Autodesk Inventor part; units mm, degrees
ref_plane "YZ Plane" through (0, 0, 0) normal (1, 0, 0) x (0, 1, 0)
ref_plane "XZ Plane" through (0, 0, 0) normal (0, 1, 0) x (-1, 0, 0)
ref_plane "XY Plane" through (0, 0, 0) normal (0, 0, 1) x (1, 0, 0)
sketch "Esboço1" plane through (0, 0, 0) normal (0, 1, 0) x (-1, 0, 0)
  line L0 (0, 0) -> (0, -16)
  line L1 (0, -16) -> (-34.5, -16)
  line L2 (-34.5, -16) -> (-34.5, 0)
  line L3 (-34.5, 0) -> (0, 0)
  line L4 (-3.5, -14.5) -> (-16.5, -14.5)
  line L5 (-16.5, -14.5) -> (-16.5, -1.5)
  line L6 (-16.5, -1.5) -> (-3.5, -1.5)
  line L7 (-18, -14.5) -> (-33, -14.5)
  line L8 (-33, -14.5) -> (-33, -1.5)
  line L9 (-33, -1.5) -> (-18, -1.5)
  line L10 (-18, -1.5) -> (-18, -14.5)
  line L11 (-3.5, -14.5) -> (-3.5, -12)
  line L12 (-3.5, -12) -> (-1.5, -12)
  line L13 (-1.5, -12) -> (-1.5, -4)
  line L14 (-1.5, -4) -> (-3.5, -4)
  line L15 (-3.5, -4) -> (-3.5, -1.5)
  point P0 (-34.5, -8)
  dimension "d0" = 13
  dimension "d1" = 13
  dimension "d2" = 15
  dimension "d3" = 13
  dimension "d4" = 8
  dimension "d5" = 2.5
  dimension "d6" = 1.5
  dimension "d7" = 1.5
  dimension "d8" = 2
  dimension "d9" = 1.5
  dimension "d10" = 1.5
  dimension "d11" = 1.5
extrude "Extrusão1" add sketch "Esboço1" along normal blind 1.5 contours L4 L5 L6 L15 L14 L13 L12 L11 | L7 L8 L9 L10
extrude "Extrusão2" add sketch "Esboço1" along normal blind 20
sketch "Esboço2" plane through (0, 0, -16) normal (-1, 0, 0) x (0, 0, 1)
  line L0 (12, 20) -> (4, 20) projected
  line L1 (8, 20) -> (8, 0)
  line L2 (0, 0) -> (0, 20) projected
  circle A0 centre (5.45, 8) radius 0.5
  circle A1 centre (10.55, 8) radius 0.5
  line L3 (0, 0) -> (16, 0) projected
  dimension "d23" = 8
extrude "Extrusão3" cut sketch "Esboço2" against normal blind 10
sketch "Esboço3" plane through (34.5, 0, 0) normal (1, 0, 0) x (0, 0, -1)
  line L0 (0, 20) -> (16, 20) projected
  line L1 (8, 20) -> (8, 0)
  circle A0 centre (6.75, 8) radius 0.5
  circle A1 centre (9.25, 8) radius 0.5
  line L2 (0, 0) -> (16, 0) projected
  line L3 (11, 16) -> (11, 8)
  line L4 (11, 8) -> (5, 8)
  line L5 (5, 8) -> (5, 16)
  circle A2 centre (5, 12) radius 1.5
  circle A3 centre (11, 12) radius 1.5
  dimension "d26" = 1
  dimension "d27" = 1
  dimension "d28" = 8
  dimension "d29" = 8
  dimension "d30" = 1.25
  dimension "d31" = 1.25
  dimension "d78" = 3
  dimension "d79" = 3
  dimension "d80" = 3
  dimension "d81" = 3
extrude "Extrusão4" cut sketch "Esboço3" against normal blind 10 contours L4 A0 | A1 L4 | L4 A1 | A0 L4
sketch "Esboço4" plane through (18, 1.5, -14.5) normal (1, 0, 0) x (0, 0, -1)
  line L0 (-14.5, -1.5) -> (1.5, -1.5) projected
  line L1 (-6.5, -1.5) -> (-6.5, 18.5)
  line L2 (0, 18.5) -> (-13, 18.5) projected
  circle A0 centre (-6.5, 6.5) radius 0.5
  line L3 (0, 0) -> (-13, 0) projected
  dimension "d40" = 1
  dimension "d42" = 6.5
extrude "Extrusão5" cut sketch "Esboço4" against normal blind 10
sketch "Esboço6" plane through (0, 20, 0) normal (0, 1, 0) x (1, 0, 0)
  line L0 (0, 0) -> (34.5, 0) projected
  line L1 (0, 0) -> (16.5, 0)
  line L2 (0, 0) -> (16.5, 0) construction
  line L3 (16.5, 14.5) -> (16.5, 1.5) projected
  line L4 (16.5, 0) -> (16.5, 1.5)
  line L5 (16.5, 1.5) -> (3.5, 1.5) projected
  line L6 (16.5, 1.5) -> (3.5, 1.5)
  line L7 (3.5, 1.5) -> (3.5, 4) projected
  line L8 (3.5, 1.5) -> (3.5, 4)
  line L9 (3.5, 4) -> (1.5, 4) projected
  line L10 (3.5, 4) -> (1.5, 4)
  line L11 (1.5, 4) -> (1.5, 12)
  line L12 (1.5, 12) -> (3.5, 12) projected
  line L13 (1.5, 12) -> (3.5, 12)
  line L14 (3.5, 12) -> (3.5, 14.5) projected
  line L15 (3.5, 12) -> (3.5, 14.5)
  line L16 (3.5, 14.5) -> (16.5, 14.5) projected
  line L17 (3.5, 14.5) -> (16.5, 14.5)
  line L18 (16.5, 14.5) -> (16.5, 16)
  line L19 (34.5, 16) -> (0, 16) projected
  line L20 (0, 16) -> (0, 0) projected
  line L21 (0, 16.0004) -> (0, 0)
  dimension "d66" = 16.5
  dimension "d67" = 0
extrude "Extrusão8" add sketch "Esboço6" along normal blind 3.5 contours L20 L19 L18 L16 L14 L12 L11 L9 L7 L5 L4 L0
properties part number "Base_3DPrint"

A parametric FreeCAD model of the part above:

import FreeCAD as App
import Part
import Sketcher
from FreeCAD import Vector


def add_polygon(sketch, points):
    """Adds a closed chain of lines whose ends are joined by coincident constraints."""
    first, n = sketch.GeometryCount, len(points)
    for a, b in zip(points, points[1:] + points[:1]):
        sketch.addGeometry(Part.LineSegment(App.Vector(*a, 0), App.Vector(*b, 0)), False)
    for i in range(n):
        sketch.addConstraint(Sketcher.Constraint("Coincident", first + i, 2, first + (i + 1) % n, 1))

doc = App.newDocument("Part")
body = doc.addObject("PartDesign::Body", "Body")
body.AllowCompound = True

sketch1 = doc.addObject("Sketcher::SketchObject", "Sketch")
body.addObject(sketch1)
sketch1.AttachmentSupport = (doc.XZ_Plane, [""])
sketch1.MapMode = "FlatFace"
add_polygon(sketch1, [(16.5, -14.5), (3.5, -14.5), (3.5, -12), (1.5, -12), (1.5, -4), (3.5, -4), (3.5, -1.5), (16.5, -1.5)])
add_polygon(sketch1, [(33, -14.5), (18, -14.5), (18, -1.5), (33, -1.5)])
sketch1.addConstraint([
    Sketcher.Constraint("Horizontal", 0),
    Sketcher.Constraint("Vertical", 1),
    Sketcher.Constraint("Horizontal", 2),
    Sketcher.Constraint("Vertical", 3),
    Sketcher.Constraint("Horizontal", 4),
    Sketcher.Constraint("Vertical", 5),
    Sketcher.Constraint("Horizontal", 6),
    Sketcher.Constraint("Vertical", 7),
    Sketcher.Constraint("Horizontal", 8),
    Sketcher.Constraint("Vertical", 9),
    Sketcher.Constraint("Horizontal", 10),
    Sketcher.Constraint("Vertical", 11),
    Sketcher.Constraint("Horizontal", 7, 2, 8, 2),
    Sketcher.Constraint("Horizontal", 6, 2, 9, 2),
    Sketcher.Constraint("Vertical", 1, 2, 4, 2),
    Sketcher.Constraint("Equal", 1, 5),
    Sketcher.Constraint("Equal", 6, 7),
    Sketcher.Constraint("DistanceX", 0, 2, 0, 1, 13.0),
    Sketcher.Constraint("DistanceX", 2, 2, 2, 1, 2.0),
    Sketcher.Constraint("DistanceX", 8, 2, 8, 1, 15.0),
    Sketcher.Constraint("DistanceY", 3, 1, 3, 2, 8.0),
    Sketcher.Constraint("DistanceX", -1, 1, 2, 2, 1.5),
    Sketcher.Constraint("DistanceY", 5, 2, -1, 1, 1.5),
    Sketcher.Constraint("DistanceX", 7, 2, 8, 2, 1.5),
])
pad1 = doc.addObject("PartDesign::Pad", "Pad")
body.addObject(pad1)
pad1.Profile = sketch1
pad1.Length = 1.5
pad1.Reversed = True

sketch2 = doc.addObject("Sketcher::SketchObject", "Sketch001")
body.addObject(sketch2)
sketch2.AttachmentSupport = (doc.XZ_Plane, [""])
sketch2.MapMode = "FlatFace"
add_polygon(sketch2, [(0, -16), (0, 0), (34.5, 0), (34.5, -16)])
add_polygon(sketch2, [(18, -1.5), (18, -14.5), (33, -14.5), (33, -1.5)])
add_polygon(sketch2, [(3.5, -12), (3.5, -14.5), (16.5, -14.5), (16.5, -1.5), (3.5, -1.5), (3.5, -4), (1.5, -4), (1.5, -12)])
sketch2.addConstraint([
    Sketcher.Constraint("Vertical", 0),
    Sketcher.Constraint("Horizontal", 1),
    Sketcher.Constraint("Vertical", 2),
    Sketcher.Constraint("Horizontal", 3),
    Sketcher.Constraint("Vertical", 4),
    Sketcher.Constraint("Horizontal", 5),
    Sketcher.Constraint("Vertical", 6),
    Sketcher.Constraint("Horizontal", 7),
    Sketcher.Constraint("Vertical", 8),
    Sketcher.Constraint("Horizontal", 9),
    Sketcher.Constraint("Vertical", 10),
    Sketcher.Constraint("Horizontal", 11),
    Sketcher.Constraint("Vertical", 12),
    Sketcher.Constraint("Horizontal", 13),
    Sketcher.Constraint("Vertical", 14),
    Sketcher.Constraint("Horizontal", 15),
    Sketcher.Constraint("Coincident", 0, 2, -1, 1),
    Sketcher.Constraint("Horizontal", 5, 2, 8, 2),
    Sketcher.Constraint("Horizontal", 7, 2, 10, 2),
    Sketcher.Constraint("Vertical", 8, 2, 11, 2),
    Sketcher.Constraint("Equal", 11, 4),
    Sketcher.Constraint("Equal", 8, 12),
    Sketcher.Constraint("DistanceX", 5, 1, 5, 2, 15.0),
    Sketcher.Constraint("DistanceX", 9, 1, 9, 2, 13.0),
    Sketcher.Constraint("DistanceX", 13, 2, 13, 1, 2.0),
    Sketcher.Constraint("DistanceY", 14, 2, 14, 1, 8.0),
    Sketcher.Constraint("DistanceY", 6, 2, -1, 1, 1.5),
    Sketcher.Constraint("DistanceX", -1, 1, 13, 2, 1.5),
    Sketcher.Constraint("DistanceY", 2, 2, 4, 2, 1.5),
    Sketcher.Constraint("DistanceX", 5, 2, 2, 2, 1.5),
    Sketcher.Constraint("DistanceX", 9, 2, 4, 2, 1.5),
])
pad2 = doc.addObject("PartDesign::Pad", "Pad001")
body.addObject(pad2)
pad2.Profile = sketch2
pad2.Length = 20
pad2.Reversed = True

sketch3 = doc.addObject("Sketcher::SketchObject", "Sketch002")
body.addObject(sketch3)
sketch3.AttachmentSupport = (doc.YZ_Plane, [""])
sketch3.MapMode = "FlatFace"
sketch3.addGeometry([
    Part.Circle(Vector(8, -10.6, 0), Vector(0, 0, 1), 0.5),
    Part.Circle(Vector(8, -5.5, 0), Vector(0, 0, 1), 0.5),
], False)
sketch3.addConstraint([
    Sketcher.Constraint("Equal", 0, 1),
    Sketcher.Constraint("Vertical", 0, 3, 1, 3),
    Sketcher.Constraint("Diameter", 0, 1.0),
    Sketcher.Constraint("DistanceX", -1, 1, 0, 3, 8.0),
    Sketcher.Constraint("DistanceY", 0, 3, 1, 3, 5.1),
    Sketcher.Constraint("DistanceY", 0, 3, -1, 1, 10.55),
])
pocket1 = doc.addObject("PartDesign::Pocket", "Pocket")
body.addObject(pocket1)
pocket1.Profile = sketch3
pocket1.Length = 10
pocket1.Reversed = True

sketch4 = doc.addObject("Sketcher::SketchObject", "Sketch003")
body.addObject(sketch4)
sketch4.AttachmentSupport = (doc.YZ_Plane, [""])
sketch4.MapMode = "FlatFace"
sketch4.AttachmentOffset = App.Placement(Vector(0, 0, 34.5), App.Rotation())
sketch4.addGeometry([
    Part.Circle(Vector(8, -6.8, 0), Vector(0, 0, 1), 0.5),
    Part.Circle(Vector(8, -9.2, 0), Vector(0, 0, 1), 0.5),
], False)
sketch4.addConstraint([
    Sketcher.Constraint("Equal", 0, 1),
    Sketcher.Constraint("Vertical", 0, 3, 1, 3),
    Sketcher.Constraint("Diameter", 0, 1.0),
    Sketcher.Constraint("DistanceX", -1, 1, 0, 3, 8.0),
    Sketcher.Constraint("DistanceY", 1, 3, 0, 3, 2.5),
    Sketcher.Constraint("DistanceY", 0, 3, -1, 1, 6.75),
])
pocket2 = doc.addObject("PartDesign::Pocket", "Pocket001")
body.addObject(pocket2)
pocket2.Profile = sketch4
pocket2.Length = 10

sketch5 = doc.addObject("Sketcher::SketchObject", "Sketch004")
body.addObject(sketch5)
sketch5.AttachmentSupport = (doc.YZ_Plane, [""])
sketch5.MapMode = "FlatFace"
sketch5.AttachmentOffset = App.Placement(Vector(0, 0, 18), App.Rotation())
sketch5.addGeometry(Part.Circle(Vector(8, -8, 0), Vector(0, 0, 1), 0.5), False)
sketch5.addConstraint([
    Sketcher.Constraint("Diameter", 0, 1.0),
    Sketcher.Constraint("DistanceX", -1, 1, 0, 3, 8.0),
    Sketcher.Constraint("DistanceY", 0, 3, -1, 1, 8.0),
])
pocket3 = doc.addObject("PartDesign::Pocket", "Pocket002")
body.addObject(pocket3)
pocket3.Profile = sketch5
pocket3.Length = 10

sketch6 = doc.addObject("Sketcher::SketchObject", "Sketch005")
body.addObject(sketch6)
sketch6.AttachmentSupport = (doc.XZ_Plane, [""])
sketch6.MapMode = "FlatFace"
sketch6.AttachmentOffset = App.Placement(Vector(0, 0, -20), App.Rotation())
add_polygon(sketch6, [(0, -16), (0, 0), (16.5, 0), (16.5, -1.5), (3.5, -1.5), (3.5, -4), (1.5, -4), (1.5, -12), (3.5, -12), (3.5, -14.5), (16.5, -14.5), (16.5, -16)])
sketch6.addConstraint([
    Sketcher.Constraint("Vertical", 0),
    Sketcher.Constraint("Horizontal", 1),
    Sketcher.Constraint("Vertical", 2),
    Sketcher.Constraint("Horizontal", 3),
    Sketcher.Constraint("Vertical", 4),
    Sketcher.Constraint("Horizontal", 5),
    Sketcher.Constraint("Vertical", 6),
    Sketcher.Constraint("Horizontal", 7),
    Sketcher.Constraint("Vertical", 8),
    Sketcher.Constraint("Horizontal", 9),
    Sketcher.Constraint("Vertical", 10),
    Sketcher.Constraint("Horizontal", 11),
    Sketcher.Constraint("Coincident", 0, 2, -1, 1),
    Sketcher.Constraint("Vertical", 4, 2, 7, 2),
    Sketcher.Constraint("Vertical", 2, 2, 9, 2),
    Sketcher.Constraint("Equal", 4, 8),
    Sketcher.Constraint("Equal", 2, 10),
    Sketcher.Constraint("DistanceX", 1, 1, 1, 2, 16.5),
    Sketcher.Constraint("DistanceX", 3, 2, 3, 1, 13.0),
    Sketcher.Constraint("DistanceX", 5, 2, 5, 1, 2.0),
    Sketcher.Constraint("DistanceY", 0, 1, 0, 2, 16.0),
    Sketcher.Constraint("DistanceY", 6, 2, 6, 1, 8.0),
    Sketcher.Constraint("DistanceY", 2, 2, 2, 1, 1.5),
])
pad3 = doc.addObject("PartDesign::Pad", "Pad002")
body.addObject(pad3)
pad3.Profile = sketch6
pad3.Length = 3.5
pad3.Reversed = True

doc.recompute()
